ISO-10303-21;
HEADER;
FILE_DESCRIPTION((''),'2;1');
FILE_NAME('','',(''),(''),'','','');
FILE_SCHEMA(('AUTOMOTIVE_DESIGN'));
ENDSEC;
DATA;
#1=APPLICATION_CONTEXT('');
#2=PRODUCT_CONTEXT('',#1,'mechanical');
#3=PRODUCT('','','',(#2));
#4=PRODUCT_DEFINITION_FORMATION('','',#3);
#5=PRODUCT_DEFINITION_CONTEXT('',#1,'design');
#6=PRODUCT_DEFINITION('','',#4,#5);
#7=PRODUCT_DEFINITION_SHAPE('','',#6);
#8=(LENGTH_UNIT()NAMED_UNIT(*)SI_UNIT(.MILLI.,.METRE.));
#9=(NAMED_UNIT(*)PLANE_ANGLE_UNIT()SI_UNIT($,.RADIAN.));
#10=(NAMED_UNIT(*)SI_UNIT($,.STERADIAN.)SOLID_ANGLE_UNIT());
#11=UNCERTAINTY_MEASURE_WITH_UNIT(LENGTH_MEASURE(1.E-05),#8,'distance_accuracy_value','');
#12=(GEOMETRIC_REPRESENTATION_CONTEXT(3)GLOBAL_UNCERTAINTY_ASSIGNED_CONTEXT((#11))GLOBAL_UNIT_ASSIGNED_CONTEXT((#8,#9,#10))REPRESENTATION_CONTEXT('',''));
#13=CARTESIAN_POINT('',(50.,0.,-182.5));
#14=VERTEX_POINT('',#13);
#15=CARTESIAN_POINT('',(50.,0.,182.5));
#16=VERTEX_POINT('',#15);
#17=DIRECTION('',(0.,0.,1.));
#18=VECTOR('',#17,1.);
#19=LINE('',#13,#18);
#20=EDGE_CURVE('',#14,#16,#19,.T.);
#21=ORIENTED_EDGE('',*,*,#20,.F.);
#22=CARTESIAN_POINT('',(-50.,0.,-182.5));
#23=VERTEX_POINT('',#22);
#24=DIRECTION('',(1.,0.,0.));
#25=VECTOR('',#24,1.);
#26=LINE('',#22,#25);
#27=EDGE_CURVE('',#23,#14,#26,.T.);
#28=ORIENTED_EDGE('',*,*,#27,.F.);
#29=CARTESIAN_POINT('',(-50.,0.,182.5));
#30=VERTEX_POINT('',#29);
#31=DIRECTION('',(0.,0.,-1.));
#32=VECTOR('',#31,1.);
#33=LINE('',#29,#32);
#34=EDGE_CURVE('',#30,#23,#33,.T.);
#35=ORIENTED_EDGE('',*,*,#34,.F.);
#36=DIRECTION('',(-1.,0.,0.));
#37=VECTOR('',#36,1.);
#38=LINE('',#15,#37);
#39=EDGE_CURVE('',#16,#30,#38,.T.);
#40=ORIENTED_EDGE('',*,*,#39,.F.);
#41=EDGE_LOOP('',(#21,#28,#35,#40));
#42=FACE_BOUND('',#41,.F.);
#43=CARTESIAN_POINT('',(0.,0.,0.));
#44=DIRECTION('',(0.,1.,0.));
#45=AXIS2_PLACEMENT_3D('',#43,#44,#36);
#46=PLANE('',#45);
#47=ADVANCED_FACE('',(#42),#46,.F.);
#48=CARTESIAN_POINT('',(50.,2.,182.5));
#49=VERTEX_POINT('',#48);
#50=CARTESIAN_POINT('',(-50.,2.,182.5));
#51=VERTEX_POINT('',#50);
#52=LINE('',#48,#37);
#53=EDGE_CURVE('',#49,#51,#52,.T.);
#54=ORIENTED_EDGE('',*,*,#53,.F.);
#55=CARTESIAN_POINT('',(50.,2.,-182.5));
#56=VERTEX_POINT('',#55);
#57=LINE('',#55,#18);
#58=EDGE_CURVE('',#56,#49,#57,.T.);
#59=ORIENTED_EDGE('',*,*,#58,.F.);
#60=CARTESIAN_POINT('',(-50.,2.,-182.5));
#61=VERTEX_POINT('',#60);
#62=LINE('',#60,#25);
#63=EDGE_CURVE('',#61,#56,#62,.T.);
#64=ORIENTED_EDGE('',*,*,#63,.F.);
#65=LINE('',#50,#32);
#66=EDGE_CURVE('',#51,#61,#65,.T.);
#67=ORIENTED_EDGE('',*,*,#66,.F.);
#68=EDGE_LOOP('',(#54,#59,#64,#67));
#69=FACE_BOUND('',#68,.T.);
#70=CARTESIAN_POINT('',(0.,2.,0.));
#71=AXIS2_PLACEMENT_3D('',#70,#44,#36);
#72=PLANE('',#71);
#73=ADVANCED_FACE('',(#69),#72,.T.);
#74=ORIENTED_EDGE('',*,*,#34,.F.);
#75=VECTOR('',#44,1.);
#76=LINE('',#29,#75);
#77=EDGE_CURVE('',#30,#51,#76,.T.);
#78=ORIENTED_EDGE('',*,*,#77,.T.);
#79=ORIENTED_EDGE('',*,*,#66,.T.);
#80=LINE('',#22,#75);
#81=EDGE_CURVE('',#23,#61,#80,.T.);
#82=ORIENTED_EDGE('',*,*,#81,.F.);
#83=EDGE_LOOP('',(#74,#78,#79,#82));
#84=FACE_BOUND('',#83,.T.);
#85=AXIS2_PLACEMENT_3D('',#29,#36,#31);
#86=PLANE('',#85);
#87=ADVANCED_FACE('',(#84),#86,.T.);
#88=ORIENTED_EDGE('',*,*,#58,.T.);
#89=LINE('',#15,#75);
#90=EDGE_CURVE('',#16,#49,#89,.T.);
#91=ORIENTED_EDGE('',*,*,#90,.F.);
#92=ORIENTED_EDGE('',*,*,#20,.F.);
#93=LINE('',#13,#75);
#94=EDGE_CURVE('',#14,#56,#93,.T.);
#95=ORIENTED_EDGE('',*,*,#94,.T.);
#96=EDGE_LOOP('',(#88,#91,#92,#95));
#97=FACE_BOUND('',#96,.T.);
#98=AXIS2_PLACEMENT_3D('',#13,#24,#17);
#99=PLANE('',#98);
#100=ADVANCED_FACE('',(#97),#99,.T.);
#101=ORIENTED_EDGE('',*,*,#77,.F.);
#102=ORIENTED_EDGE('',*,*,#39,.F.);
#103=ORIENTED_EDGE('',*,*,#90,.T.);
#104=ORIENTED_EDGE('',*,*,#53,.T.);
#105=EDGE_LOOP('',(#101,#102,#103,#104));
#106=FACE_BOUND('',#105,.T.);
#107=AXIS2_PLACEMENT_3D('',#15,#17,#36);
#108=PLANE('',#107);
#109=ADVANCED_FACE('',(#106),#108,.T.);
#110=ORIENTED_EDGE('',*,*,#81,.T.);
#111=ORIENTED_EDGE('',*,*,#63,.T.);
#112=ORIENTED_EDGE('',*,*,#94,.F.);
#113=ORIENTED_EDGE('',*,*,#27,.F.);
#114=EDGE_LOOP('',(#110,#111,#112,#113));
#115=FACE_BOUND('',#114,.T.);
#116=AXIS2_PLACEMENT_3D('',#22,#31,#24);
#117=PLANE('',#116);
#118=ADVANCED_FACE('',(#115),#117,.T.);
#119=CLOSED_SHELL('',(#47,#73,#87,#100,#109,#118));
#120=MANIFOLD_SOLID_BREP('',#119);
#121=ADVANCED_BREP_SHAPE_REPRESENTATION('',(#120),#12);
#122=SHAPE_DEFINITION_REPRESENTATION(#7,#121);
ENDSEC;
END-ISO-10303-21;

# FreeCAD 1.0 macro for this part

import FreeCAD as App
import Part
import Sketcher

V = App.Vector

doc = App.newDocument("Part")
params = doc.addObject("Spreadsheet::Sheet", "Params")
for row, (alias, value) in enumerate([
    ("sketch1_width", "100 mm"),
    ("sketch1_height", "365 mm"),
    ("pad1_length", "2 mm"),
], start=1):
    params.set(f"A{row}", alias)
    params.set(f"B{row}", "=" + value)
    params.setAlias(f"B{row}", alias)

body = doc.addObject("PartDesign::Body", "Body")

# Sketch on XZ plane
sketch1 = body.newObject("Sketcher::SketchObject", "Sketch")
sketch1.AttachmentSupport = (doc.getObject("XZ_Plane"), [""])
sketch1.MapMode = "FlatFace"
sketch1.addGeometry([
    Part.LineSegment(V(-50, 182.5, 0), V(50, 182.5, 0)),
    Part.LineSegment(V(50, 182.5, 0), V(50, -182.5, 0)),
    Part.LineSegment(V(50, -182.5, 0), V(-50, -182.5, 0)),
    Part.LineSegment(V(-50, -182.5, 0), V(-50, 182.5, 0)),
], False)
sketch1.addConstraint([
    Sketcher.Constraint("Coincident", 0, 2, 1, 1),
    Sketcher.Constraint("Coincident", 1, 2, 2, 1),
    Sketcher.Constraint("Coincident", 2, 2, 3, 1),
    Sketcher.Constraint("Coincident", 3, 2, 0, 1),
    Sketcher.Constraint("Horizontal", 0),
    Sketcher.Constraint("Vertical", 1),
    Sketcher.Constraint("Horizontal", 2),
    Sketcher.Constraint("Vertical", 3),
    Sketcher.Constraint("Symmetric", 0, 2, 2, 2, -1, 1),
    Sketcher.Constraint("DistanceX", 0, 1, 0, 2, 100.0),
    Sketcher.Constraint("DistanceY", 1, 2, 1, 1, 365.0),
])
sketch1.setExpression("Constraints[9]", "Params.sketch1_width")
sketch1.setExpression("Constraints[10]", "Params.sketch1_height")
pad1 = body.newObject("PartDesign::Pad", "Pad")
pad1.Profile = sketch1
pad1.setExpression("Length", "Params.pad1_length")
pad1.Reversed = True

doc.recompute()
